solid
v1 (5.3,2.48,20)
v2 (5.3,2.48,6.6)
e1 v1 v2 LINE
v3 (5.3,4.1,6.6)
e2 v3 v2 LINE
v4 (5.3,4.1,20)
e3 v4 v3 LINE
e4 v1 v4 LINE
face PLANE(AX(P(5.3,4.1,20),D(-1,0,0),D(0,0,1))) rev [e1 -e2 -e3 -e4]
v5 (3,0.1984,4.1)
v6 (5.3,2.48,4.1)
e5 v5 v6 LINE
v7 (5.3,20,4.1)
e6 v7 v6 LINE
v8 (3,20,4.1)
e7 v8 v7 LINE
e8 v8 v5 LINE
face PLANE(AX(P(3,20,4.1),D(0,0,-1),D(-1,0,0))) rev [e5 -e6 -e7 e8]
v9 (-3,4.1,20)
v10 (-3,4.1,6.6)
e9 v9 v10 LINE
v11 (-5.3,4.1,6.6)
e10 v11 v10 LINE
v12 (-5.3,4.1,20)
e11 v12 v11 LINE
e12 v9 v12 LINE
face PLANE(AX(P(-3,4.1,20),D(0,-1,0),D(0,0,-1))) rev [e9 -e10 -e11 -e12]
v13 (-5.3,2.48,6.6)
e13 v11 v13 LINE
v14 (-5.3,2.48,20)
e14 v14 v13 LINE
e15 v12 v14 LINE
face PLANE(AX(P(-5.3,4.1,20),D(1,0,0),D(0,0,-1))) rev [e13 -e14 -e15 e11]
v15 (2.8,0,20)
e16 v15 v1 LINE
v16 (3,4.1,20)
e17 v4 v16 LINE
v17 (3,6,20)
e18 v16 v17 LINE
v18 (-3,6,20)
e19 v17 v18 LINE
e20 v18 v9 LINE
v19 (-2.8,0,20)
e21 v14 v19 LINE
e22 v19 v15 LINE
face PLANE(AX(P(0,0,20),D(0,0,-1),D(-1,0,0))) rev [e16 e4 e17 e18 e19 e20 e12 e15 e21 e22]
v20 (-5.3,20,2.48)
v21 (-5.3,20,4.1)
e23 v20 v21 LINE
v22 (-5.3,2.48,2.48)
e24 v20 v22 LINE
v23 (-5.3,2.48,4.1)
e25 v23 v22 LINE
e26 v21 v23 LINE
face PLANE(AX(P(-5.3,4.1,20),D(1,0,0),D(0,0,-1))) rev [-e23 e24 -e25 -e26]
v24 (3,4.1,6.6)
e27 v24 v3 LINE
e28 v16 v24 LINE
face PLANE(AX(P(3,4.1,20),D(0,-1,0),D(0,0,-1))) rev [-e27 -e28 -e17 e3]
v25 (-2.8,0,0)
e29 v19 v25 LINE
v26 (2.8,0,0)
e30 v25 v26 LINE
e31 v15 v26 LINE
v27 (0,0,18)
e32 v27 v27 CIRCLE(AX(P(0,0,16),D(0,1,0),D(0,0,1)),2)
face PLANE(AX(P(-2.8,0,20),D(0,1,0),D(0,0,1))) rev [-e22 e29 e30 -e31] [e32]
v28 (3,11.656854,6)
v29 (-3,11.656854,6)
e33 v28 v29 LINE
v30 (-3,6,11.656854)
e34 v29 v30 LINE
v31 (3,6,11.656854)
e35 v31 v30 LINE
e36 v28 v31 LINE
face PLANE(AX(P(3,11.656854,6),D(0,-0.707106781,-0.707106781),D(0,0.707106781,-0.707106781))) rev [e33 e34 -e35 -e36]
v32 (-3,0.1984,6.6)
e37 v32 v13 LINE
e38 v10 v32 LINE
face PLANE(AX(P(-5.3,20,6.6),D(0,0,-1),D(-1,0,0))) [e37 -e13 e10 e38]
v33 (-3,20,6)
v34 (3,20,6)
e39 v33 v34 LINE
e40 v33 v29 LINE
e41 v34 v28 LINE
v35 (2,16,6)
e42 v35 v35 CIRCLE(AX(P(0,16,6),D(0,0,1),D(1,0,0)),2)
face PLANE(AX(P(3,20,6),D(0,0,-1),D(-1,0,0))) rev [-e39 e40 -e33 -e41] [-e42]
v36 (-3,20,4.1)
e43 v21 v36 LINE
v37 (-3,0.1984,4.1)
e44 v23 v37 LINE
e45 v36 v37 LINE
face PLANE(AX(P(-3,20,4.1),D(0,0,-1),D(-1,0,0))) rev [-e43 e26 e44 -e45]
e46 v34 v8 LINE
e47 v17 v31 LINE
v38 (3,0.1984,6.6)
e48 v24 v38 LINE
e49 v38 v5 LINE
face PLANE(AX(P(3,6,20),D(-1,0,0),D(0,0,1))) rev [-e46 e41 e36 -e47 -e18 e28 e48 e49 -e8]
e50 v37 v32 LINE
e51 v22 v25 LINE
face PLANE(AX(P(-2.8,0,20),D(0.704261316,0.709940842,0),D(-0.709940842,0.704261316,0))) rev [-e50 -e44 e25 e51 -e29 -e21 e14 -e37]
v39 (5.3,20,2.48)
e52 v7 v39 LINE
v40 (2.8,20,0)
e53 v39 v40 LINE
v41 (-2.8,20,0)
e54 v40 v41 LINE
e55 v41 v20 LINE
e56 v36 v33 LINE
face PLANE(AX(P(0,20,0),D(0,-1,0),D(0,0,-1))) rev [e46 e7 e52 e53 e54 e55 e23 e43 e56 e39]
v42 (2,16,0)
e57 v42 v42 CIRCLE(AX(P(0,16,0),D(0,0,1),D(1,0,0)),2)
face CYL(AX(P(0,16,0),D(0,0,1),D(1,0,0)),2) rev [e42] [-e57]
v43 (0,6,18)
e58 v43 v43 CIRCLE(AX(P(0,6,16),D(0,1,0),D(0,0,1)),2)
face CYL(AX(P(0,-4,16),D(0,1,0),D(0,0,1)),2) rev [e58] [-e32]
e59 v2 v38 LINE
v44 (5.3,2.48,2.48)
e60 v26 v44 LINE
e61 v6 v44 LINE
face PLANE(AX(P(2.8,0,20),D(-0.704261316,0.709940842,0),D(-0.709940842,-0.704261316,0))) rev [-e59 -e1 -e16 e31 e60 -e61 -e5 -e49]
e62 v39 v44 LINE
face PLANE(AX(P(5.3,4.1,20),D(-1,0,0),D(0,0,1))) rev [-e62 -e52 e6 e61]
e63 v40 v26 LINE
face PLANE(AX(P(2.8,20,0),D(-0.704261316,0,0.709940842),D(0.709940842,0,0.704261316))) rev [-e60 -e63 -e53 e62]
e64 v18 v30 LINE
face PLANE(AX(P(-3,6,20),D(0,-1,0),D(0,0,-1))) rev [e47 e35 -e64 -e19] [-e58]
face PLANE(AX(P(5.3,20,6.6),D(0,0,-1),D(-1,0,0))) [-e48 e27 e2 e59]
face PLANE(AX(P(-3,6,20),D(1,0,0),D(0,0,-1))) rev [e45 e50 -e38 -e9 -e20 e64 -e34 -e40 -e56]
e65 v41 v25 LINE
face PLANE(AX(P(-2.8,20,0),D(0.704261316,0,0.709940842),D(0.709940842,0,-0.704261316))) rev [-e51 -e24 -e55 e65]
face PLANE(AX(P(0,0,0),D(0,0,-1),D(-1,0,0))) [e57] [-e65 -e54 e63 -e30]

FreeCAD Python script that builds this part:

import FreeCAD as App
import Part
import Sketcher


def add_polygon(sketch, points):
    """Adds a closed chain of lines whose ends are joined by coincident constraints."""
    first, n = sketch.GeometryCount, len(points)
    for a, b in zip(points, points[1:] + points[:1]):
        sketch.addGeometry(Part.LineSegment(App.Vector(*a, 0), App.Vector(*b, 0)), False)
    for i in range(n):
        sketch.addConstraint(Sketcher.Constraint("Coincident", first + i, 2, first + (i + 1) % n, 1))

doc = App.newDocument("Part")
params = doc.addObject("Spreadsheet::Sheet", "Params")
for row, (alias, value) in enumerate([
    ("sketch1_width", "6 mm"),
    ("sketch1_width2", "2.3 mm"),
    ("sketch1_width3", "5.6 mm"),
    ("sketch1_height", "1.9 mm"),
    ("sketch1_height2", "1.62 mm"),
    ("pad1_length", "20 mm"),
    ("sketch2_width", "6 mm"),
    ("sketch2_width2", "2.3 mm"),
    ("sketch2_width3", "5.6 mm"),
    ("sketch2_height", "1.9 mm"),
    ("sketch2_height2", "1.62 mm"),
    ("pad2_length", "20 mm"),
    ("sketch3_width", "2.5 mm"),
    ("sketch3_height", "2.48 mm"),
    ("sketch4_width", "2.5 mm"),
    ("sketch4_height", "2.48 mm"),
    ("sketch5_length", "8 mm"),
    ("pad3_length", "6 mm"),
    ("sketch6_width", "2.3 mm"),
    ("sketch6_height", "2.5 mm"),
    ("sketch7_diameter", "4 mm"),
    ("sketch8_diameter", "4 mm"),
    ("pocket5_length", "10 mm"),
], start=1):
    params.set(f"A{row}", alias)
    params.set(f"B{row}", "=" + value)
    params.setAlias(f"B{row}", alias)

body = doc.addObject("PartDesign::Body", "Body")

# Sketch on XY plane
sketch1 = body.newObject("Sketcher::SketchObject", "Sketch")
sketch1.AttachmentSupport = (doc.getObject("XY_Plane"), [""])
sketch1.MapMode = "FlatFace"
add_polygon(sketch1, [(3, 6), (-3, 6), (-3, 4.1), (-5.3, 4.1), (-5.3, 2.5), (-2.8, 0), (2.8, 0), (5.3, 2.5), (5.3, 4.1), (3, 4.1)])  # lines 0-9
sketch1.addConstraint([
    Sketcher.Constraint("Horizontal", 0),
    Sketcher.Constraint("Vertical", 1),
    Sketcher.Constraint("Horizontal", 2),
    Sketcher.Constraint("Vertical", 3),
    Sketcher.Constraint("Horizontal", 5),
    Sketcher.Constraint("Vertical", 7),
    Sketcher.Constraint("Horizontal", 8),
    Sketcher.Constraint("Vertical", 9),
    Sketcher.Constraint("Symmetric", 4, 2, 5, 2, -1, 1),
    Sketcher.Constraint("Symmetric", 3, 2, 6, 2, -2),
    Sketcher.Constraint("Symmetric", 1, 2, 8, 2, -2),
    Sketcher.Constraint("DistanceX", 0, 2, 0, 1, 6.0),
    Sketcher.Constraint("DistanceX", 2, 2, 2, 1, 2.3),
    Sketcher.Constraint("DistanceX", 5, 1, 5, 2, 5.6),
    Sketcher.Constraint("DistanceY", 1, 2, 1, 1, 1.9),
    Sketcher.Constraint("DistanceY", -1, 1, 0, 2, 6.0),
    Sketcher.Constraint("DistanceY", 3, 2, 3, 1, 1.62),
])
sketch1.setExpression("Constraints[21]", "Params.sketch1_width")
sketch1.setExpression("Constraints[22]", "Params.sketch1_width2")
sketch1.setExpression("Constraints[23]", "Params.sketch1_width3")
sketch1.setExpression("Constraints[24]", "Params.sketch1_height")
sketch1.setExpression("Constraints[26]", "Params.sketch1_height2")
pad1 = body.newObject("PartDesign::Pad", "Pad")
pad1.Profile = sketch1
pad1.setExpression("Length", "Params.pad1_length")

# Sketch on XZ plane
sketch2 = body.newObject("Sketcher::SketchObject", "Sketch001")
sketch2.AttachmentSupport = (doc.getObject("XZ_Plane"), [""])
sketch2.MapMode = "FlatFace"
add_polygon(sketch2, [(-3, 6), (3, 6), (3, 4.1), (5.3, 4.1), (5.3, 2.5), (2.8, 0), (-2.8, 0), (-5.3, 2.5), (-5.3, 4.1), (-3, 4.1)])  # lines 0-9
sketch2.addConstraint([
    Sketcher.Constraint("Horizontal", 0),
    Sketcher.Constraint("Vertical", 1),
    Sketcher.Constraint("Horizontal", 2),
    Sketcher.Constraint("Vertical", 3),
    Sketcher.Constraint("Horizontal", 5),
    Sketcher.Constraint("Vertical", 7),
    Sketcher.Constraint("Horizontal", 8),
    Sketcher.Constraint("Vertical", 9),
    Sketcher.Constraint("Symmetric", 4, 2, 5, 2, -1, 1),
    Sketcher.Constraint("Symmetric", 3, 2, 6, 2, -2),
    Sketcher.Constraint("Symmetric", 1, 2, 8, 2, -2),
    Sketcher.Constraint("DistanceX", 0, 1, 0, 2, 6.0),
    Sketcher.Constraint("DistanceX", 2, 1, 2, 2, 2.3),
    Sketcher.Constraint("DistanceX", 5, 2, 5, 1, 5.6),
    Sketcher.Constraint("DistanceY", 1, 2, 1, 1, 1.9),
    Sketcher.Constraint("DistanceY", -1, 1, 0, 2, 6.0),
    Sketcher.Constraint("DistanceY", 3, 2, 3, 1, 1.62),
])
sketch2.setExpression("Constraints[21]", "Params.sketch2_width")
sketch2.setExpression("Constraints[22]", "Params.sketch2_width2")
sketch2.setExpression("Constraints[23]", "Params.sketch2_width3")
sketch2.setExpression("Constraints[24]", "Params.sketch2_height")
sketch2.setExpression("Constraints[26]", "Params.sketch2_height2")
pad2 = body.newObject("PartDesign::Pad", "Pad001")
pad2.Profile = sketch2
pad2.setExpression("Length", "Params.pad2_length")
pad2.Reversed = True

# Sketch on XZ plane
sketch3 = body.newObject("Sketcher::SketchObject", "Sketch002")
sketch3.AttachmentSupport = (doc.getObject("XZ_Plane"), [""])
sketch3.MapMode = "FlatFace"
add_polygon(sketch3, [(-5.3, 2.5), (-2.8, 0), (-5.3, 0)])  # lines 0-2
add_polygon(sketch3, [(5.3, 2.5), (5.3, 0), (2.8, 0)])  # lines 3-5
sketch3.addConstraint([
    Sketcher.Constraint("Horizontal", 1),
    Sketcher.Constraint("Vertical", 2),
    Sketcher.Constraint("Vertical", 3),
    Sketcher.Constraint("Horizontal", 4),
    Sketcher.Constraint("Symmetric", 1, 2, 3, 2, -1, 1),
    Sketcher.Constraint("Symmetric", 0, 2, 4, 2, -2),
    Sketcher.Constraint("Horizontal", 2, 2, 5, 2),
    Sketcher.Constraint("DistanceX", 1, 2, 1, 1, 2.5),
    Sketcher.Constraint("DistanceY", 2, 1, 2, 2, 2.48),
    Sketcher.Constraint("DistanceX", 0, 2, -1, 1, 2.8),
])
sketch3.setExpression("Constraints[13]", "Params.sketch3_width")
sketch3.setExpression("Constraints[14]", "Params.sketch3_height")
pocket1 = body.newObject("PartDesign::Pocket", "Pocket")
pocket1.Profile = sketch3
pocket1.Type = "ThroughAll"
pocket1.Midplane = True

# Sketch on XY plane
sketch4 = body.newObject("Sketcher::SketchObject", "Sketch003")
sketch4.AttachmentSupport = (doc.getObject("XY_Plane"), [""])
sketch4.MapMode = "FlatFace"
add_polygon(sketch4, [(2.8, 0), (5.3, 0), (5.3, 2.5)])  # lines 0-2
add_polygon(sketch4, [(-5.3, 2.5), (-5.3, 0), (-2.8, 0)])  # lines 3-5
sketch4.addConstraint([
    Sketcher.Constraint("Horizontal", 0),
    Sketcher.Constraint("Vertical", 1),
    Sketcher.Constraint("Vertical", 3),
    Sketcher.Constraint("Horizontal", 4),
    Sketcher.Constraint("Symmetric", 0, 2, 3, 2, -1, 1),
    Sketcher.Constraint("Symmetric", 2, 2, 4, 2, -2),
    Sketcher.Constraint("Horizontal", 1, 2, 5, 2),
    Sketcher.Constraint("DistanceX", 0, 1, 0, 2, 2.5),
    Sketcher.Constraint("DistanceY", 1, 1, 1, 2, 2.48),
    Sketcher.Constraint("DistanceX", -1, 1, 0, 2, 5.3),
])
sketch4.setExpression("Constraints[13]", "Params.sketch4_width")
sketch4.setExpression("Constraints[14]", "Params.sketch4_height")
pocket2 = body.newObject("PartDesign::Pocket", "Pocket001")
pocket2.Profile = sketch4
pocket2.Type = "ThroughAll"
pocket2.Reversed = True

# Sketch on YZ plane
sketch5 = body.newObject("Sketcher::SketchObject", "Sketch004")
sketch5.AttachmentSupport = (doc.getObject("YZ_Plane"), [""])
sketch5.MapMode = "FlatFace"
add_polygon(sketch5, [(6, 12), (6, 6), (12, 6)])  # lines 0-2
sketch5.addConstraint([
    Sketcher.Constraint("Vertical", 0),
    Sketcher.Constraint("Horizontal", 1),
    Sketcher.Constraint("Equal", 1, 0),
    Sketcher.Constraint("Distance", 2, 8.0),
    Sketcher.Constraint("DistanceX", -1, 1, 0, 2, 6.0),
    Sketcher.Constraint("DistanceY", -1, 1, 0, 2, 6.0),
])
sketch5.setExpression("Constraints[6]", "Params.sketch5_length")
pad3 = body.newObject("PartDesign::Pad", "Pad002")
pad3.Profile = sketch5
pad3.setExpression("Length", "Params.pad3_length")
pad3.Midplane = True

# Sketch on XZ plane
sketch6 = body.newObject("Sketcher::SketchObject", "Sketch005")
sketch6.AttachmentSupport = (doc.getObject("XZ_Plane"), [""])
sketch6.MapMode = "FlatFace"
add_polygon(sketch6, [(-3, 4.1), (-5.3, 4.1), (-5.3, 6.6), (-3, 6.6)])  # lines 0-3
add_polygon(sketch6, [(3, 4.1), (3, 6.6), (5.3, 6.6), (5.3, 4.1)])  # lines 4-7
sketch6.addConstraint([
    Sketcher.Constraint("Horizontal", 0),
    Sketcher.Constraint("Vertical", 1),
    Sketcher.Constraint("Horizontal", 2),
    Sketcher.Constraint("Vertical", 3),
    Sketcher.Constraint("Vertical", 4),
    Sketcher.Constraint("Horizontal", 5),
    Sketcher.Constraint("Vertical", 6),
    Sketcher.Constraint("Horizontal", 7),
    Sketcher.Constraint("Symmetric", 2, 2, 4, 2, -2),
    Sketcher.Constraint("Symmetric", 0, 2, 6, 2, -2),
    Sketcher.Constraint("DistanceX", 0, 2, 0, 1, 2.3),
    Sketcher.Constraint("DistanceY", 1, 1, 1, 2, 2.5),
    Sketcher.Constraint("DistanceX", 2, 2, -1, 1, 3.0),
    Sketcher.Constraint("DistanceY", -1, 1, 0, 2, 4.1),
])
sketch6.setExpression("Constraints[18]", "Params.sketch6_width")
sketch6.setExpression("Constraints[19]", "Params.sketch6_height")
pocket3 = body.newObject("PartDesign::Pocket", "Pocket002")
pocket3.Profile = sketch6
pocket3.Type = "ThroughAll"

# Sketch on XY plane
sketch7 = body.newObject("Sketcher::SketchObject", "Sketch006")
sketch7.AttachmentSupport = (doc.getObject("XY_Plane"), [""])
sketch7.MapMode = "FlatFace"
sketch7.AttachmentOffset = App.Placement(App.Vector(0, 0, 6), App.Rotation())
sketch7.addGeometry(Part.Circle(App.Vector(0, 16, 0), App.Vector(0, 0, 1), 2), False)
sketch7.addConstraint([
    Sketcher.Constraint("PointOnObject", 0, 3, -2),
    Sketcher.Constraint("Diameter", 0, 4.0),
    Sketcher.Constraint("DistanceY", -1, 1, 0, 3, 16.0),
])
sketch7.setExpression("Constraints[1]", "Params.sketch7_diameter")
pocket4 = body.newObject("PartDesign::Pocket", "Pocket003")
pocket4.Profile = sketch7
pocket4.Type = "ThroughAll"

# Sketch on XZ plane
sketch8 = body.newObject("Sketcher::SketchObject", "Sketch007")
sketch8.AttachmentSupport = (doc.getObject("XZ_Plane"), [""])
sketch8.MapMode = "FlatFace"
sketch8.AttachmentOffset = App.Placement(App.Vector(0, 0, -6), App.Rotation())
sketch8.addGeometry(Part.Circle(App.Vector(0, 16, 0), App.Vector(0, 0, 1), 2), False)
sketch8.addConstraint([
    Sketcher.Constraint("PointOnObject", 0, 3, -2),
    Sketcher.Constraint("Diameter", 0, 4.0),
    Sketcher.Constraint("DistanceY", -1, 1, 0, 3, 16.0),
])
sketch8.setExpression("Constraints[1]", "Params.sketch8_diameter")
pocket5 = body.newObject("PartDesign::Pocket", "Pocket004")
pocket5.Profile = sketch8
pocket5.setExpression("Length", "Params.pocket5_length")
pocket5.Reversed = True

doc.recompute()
